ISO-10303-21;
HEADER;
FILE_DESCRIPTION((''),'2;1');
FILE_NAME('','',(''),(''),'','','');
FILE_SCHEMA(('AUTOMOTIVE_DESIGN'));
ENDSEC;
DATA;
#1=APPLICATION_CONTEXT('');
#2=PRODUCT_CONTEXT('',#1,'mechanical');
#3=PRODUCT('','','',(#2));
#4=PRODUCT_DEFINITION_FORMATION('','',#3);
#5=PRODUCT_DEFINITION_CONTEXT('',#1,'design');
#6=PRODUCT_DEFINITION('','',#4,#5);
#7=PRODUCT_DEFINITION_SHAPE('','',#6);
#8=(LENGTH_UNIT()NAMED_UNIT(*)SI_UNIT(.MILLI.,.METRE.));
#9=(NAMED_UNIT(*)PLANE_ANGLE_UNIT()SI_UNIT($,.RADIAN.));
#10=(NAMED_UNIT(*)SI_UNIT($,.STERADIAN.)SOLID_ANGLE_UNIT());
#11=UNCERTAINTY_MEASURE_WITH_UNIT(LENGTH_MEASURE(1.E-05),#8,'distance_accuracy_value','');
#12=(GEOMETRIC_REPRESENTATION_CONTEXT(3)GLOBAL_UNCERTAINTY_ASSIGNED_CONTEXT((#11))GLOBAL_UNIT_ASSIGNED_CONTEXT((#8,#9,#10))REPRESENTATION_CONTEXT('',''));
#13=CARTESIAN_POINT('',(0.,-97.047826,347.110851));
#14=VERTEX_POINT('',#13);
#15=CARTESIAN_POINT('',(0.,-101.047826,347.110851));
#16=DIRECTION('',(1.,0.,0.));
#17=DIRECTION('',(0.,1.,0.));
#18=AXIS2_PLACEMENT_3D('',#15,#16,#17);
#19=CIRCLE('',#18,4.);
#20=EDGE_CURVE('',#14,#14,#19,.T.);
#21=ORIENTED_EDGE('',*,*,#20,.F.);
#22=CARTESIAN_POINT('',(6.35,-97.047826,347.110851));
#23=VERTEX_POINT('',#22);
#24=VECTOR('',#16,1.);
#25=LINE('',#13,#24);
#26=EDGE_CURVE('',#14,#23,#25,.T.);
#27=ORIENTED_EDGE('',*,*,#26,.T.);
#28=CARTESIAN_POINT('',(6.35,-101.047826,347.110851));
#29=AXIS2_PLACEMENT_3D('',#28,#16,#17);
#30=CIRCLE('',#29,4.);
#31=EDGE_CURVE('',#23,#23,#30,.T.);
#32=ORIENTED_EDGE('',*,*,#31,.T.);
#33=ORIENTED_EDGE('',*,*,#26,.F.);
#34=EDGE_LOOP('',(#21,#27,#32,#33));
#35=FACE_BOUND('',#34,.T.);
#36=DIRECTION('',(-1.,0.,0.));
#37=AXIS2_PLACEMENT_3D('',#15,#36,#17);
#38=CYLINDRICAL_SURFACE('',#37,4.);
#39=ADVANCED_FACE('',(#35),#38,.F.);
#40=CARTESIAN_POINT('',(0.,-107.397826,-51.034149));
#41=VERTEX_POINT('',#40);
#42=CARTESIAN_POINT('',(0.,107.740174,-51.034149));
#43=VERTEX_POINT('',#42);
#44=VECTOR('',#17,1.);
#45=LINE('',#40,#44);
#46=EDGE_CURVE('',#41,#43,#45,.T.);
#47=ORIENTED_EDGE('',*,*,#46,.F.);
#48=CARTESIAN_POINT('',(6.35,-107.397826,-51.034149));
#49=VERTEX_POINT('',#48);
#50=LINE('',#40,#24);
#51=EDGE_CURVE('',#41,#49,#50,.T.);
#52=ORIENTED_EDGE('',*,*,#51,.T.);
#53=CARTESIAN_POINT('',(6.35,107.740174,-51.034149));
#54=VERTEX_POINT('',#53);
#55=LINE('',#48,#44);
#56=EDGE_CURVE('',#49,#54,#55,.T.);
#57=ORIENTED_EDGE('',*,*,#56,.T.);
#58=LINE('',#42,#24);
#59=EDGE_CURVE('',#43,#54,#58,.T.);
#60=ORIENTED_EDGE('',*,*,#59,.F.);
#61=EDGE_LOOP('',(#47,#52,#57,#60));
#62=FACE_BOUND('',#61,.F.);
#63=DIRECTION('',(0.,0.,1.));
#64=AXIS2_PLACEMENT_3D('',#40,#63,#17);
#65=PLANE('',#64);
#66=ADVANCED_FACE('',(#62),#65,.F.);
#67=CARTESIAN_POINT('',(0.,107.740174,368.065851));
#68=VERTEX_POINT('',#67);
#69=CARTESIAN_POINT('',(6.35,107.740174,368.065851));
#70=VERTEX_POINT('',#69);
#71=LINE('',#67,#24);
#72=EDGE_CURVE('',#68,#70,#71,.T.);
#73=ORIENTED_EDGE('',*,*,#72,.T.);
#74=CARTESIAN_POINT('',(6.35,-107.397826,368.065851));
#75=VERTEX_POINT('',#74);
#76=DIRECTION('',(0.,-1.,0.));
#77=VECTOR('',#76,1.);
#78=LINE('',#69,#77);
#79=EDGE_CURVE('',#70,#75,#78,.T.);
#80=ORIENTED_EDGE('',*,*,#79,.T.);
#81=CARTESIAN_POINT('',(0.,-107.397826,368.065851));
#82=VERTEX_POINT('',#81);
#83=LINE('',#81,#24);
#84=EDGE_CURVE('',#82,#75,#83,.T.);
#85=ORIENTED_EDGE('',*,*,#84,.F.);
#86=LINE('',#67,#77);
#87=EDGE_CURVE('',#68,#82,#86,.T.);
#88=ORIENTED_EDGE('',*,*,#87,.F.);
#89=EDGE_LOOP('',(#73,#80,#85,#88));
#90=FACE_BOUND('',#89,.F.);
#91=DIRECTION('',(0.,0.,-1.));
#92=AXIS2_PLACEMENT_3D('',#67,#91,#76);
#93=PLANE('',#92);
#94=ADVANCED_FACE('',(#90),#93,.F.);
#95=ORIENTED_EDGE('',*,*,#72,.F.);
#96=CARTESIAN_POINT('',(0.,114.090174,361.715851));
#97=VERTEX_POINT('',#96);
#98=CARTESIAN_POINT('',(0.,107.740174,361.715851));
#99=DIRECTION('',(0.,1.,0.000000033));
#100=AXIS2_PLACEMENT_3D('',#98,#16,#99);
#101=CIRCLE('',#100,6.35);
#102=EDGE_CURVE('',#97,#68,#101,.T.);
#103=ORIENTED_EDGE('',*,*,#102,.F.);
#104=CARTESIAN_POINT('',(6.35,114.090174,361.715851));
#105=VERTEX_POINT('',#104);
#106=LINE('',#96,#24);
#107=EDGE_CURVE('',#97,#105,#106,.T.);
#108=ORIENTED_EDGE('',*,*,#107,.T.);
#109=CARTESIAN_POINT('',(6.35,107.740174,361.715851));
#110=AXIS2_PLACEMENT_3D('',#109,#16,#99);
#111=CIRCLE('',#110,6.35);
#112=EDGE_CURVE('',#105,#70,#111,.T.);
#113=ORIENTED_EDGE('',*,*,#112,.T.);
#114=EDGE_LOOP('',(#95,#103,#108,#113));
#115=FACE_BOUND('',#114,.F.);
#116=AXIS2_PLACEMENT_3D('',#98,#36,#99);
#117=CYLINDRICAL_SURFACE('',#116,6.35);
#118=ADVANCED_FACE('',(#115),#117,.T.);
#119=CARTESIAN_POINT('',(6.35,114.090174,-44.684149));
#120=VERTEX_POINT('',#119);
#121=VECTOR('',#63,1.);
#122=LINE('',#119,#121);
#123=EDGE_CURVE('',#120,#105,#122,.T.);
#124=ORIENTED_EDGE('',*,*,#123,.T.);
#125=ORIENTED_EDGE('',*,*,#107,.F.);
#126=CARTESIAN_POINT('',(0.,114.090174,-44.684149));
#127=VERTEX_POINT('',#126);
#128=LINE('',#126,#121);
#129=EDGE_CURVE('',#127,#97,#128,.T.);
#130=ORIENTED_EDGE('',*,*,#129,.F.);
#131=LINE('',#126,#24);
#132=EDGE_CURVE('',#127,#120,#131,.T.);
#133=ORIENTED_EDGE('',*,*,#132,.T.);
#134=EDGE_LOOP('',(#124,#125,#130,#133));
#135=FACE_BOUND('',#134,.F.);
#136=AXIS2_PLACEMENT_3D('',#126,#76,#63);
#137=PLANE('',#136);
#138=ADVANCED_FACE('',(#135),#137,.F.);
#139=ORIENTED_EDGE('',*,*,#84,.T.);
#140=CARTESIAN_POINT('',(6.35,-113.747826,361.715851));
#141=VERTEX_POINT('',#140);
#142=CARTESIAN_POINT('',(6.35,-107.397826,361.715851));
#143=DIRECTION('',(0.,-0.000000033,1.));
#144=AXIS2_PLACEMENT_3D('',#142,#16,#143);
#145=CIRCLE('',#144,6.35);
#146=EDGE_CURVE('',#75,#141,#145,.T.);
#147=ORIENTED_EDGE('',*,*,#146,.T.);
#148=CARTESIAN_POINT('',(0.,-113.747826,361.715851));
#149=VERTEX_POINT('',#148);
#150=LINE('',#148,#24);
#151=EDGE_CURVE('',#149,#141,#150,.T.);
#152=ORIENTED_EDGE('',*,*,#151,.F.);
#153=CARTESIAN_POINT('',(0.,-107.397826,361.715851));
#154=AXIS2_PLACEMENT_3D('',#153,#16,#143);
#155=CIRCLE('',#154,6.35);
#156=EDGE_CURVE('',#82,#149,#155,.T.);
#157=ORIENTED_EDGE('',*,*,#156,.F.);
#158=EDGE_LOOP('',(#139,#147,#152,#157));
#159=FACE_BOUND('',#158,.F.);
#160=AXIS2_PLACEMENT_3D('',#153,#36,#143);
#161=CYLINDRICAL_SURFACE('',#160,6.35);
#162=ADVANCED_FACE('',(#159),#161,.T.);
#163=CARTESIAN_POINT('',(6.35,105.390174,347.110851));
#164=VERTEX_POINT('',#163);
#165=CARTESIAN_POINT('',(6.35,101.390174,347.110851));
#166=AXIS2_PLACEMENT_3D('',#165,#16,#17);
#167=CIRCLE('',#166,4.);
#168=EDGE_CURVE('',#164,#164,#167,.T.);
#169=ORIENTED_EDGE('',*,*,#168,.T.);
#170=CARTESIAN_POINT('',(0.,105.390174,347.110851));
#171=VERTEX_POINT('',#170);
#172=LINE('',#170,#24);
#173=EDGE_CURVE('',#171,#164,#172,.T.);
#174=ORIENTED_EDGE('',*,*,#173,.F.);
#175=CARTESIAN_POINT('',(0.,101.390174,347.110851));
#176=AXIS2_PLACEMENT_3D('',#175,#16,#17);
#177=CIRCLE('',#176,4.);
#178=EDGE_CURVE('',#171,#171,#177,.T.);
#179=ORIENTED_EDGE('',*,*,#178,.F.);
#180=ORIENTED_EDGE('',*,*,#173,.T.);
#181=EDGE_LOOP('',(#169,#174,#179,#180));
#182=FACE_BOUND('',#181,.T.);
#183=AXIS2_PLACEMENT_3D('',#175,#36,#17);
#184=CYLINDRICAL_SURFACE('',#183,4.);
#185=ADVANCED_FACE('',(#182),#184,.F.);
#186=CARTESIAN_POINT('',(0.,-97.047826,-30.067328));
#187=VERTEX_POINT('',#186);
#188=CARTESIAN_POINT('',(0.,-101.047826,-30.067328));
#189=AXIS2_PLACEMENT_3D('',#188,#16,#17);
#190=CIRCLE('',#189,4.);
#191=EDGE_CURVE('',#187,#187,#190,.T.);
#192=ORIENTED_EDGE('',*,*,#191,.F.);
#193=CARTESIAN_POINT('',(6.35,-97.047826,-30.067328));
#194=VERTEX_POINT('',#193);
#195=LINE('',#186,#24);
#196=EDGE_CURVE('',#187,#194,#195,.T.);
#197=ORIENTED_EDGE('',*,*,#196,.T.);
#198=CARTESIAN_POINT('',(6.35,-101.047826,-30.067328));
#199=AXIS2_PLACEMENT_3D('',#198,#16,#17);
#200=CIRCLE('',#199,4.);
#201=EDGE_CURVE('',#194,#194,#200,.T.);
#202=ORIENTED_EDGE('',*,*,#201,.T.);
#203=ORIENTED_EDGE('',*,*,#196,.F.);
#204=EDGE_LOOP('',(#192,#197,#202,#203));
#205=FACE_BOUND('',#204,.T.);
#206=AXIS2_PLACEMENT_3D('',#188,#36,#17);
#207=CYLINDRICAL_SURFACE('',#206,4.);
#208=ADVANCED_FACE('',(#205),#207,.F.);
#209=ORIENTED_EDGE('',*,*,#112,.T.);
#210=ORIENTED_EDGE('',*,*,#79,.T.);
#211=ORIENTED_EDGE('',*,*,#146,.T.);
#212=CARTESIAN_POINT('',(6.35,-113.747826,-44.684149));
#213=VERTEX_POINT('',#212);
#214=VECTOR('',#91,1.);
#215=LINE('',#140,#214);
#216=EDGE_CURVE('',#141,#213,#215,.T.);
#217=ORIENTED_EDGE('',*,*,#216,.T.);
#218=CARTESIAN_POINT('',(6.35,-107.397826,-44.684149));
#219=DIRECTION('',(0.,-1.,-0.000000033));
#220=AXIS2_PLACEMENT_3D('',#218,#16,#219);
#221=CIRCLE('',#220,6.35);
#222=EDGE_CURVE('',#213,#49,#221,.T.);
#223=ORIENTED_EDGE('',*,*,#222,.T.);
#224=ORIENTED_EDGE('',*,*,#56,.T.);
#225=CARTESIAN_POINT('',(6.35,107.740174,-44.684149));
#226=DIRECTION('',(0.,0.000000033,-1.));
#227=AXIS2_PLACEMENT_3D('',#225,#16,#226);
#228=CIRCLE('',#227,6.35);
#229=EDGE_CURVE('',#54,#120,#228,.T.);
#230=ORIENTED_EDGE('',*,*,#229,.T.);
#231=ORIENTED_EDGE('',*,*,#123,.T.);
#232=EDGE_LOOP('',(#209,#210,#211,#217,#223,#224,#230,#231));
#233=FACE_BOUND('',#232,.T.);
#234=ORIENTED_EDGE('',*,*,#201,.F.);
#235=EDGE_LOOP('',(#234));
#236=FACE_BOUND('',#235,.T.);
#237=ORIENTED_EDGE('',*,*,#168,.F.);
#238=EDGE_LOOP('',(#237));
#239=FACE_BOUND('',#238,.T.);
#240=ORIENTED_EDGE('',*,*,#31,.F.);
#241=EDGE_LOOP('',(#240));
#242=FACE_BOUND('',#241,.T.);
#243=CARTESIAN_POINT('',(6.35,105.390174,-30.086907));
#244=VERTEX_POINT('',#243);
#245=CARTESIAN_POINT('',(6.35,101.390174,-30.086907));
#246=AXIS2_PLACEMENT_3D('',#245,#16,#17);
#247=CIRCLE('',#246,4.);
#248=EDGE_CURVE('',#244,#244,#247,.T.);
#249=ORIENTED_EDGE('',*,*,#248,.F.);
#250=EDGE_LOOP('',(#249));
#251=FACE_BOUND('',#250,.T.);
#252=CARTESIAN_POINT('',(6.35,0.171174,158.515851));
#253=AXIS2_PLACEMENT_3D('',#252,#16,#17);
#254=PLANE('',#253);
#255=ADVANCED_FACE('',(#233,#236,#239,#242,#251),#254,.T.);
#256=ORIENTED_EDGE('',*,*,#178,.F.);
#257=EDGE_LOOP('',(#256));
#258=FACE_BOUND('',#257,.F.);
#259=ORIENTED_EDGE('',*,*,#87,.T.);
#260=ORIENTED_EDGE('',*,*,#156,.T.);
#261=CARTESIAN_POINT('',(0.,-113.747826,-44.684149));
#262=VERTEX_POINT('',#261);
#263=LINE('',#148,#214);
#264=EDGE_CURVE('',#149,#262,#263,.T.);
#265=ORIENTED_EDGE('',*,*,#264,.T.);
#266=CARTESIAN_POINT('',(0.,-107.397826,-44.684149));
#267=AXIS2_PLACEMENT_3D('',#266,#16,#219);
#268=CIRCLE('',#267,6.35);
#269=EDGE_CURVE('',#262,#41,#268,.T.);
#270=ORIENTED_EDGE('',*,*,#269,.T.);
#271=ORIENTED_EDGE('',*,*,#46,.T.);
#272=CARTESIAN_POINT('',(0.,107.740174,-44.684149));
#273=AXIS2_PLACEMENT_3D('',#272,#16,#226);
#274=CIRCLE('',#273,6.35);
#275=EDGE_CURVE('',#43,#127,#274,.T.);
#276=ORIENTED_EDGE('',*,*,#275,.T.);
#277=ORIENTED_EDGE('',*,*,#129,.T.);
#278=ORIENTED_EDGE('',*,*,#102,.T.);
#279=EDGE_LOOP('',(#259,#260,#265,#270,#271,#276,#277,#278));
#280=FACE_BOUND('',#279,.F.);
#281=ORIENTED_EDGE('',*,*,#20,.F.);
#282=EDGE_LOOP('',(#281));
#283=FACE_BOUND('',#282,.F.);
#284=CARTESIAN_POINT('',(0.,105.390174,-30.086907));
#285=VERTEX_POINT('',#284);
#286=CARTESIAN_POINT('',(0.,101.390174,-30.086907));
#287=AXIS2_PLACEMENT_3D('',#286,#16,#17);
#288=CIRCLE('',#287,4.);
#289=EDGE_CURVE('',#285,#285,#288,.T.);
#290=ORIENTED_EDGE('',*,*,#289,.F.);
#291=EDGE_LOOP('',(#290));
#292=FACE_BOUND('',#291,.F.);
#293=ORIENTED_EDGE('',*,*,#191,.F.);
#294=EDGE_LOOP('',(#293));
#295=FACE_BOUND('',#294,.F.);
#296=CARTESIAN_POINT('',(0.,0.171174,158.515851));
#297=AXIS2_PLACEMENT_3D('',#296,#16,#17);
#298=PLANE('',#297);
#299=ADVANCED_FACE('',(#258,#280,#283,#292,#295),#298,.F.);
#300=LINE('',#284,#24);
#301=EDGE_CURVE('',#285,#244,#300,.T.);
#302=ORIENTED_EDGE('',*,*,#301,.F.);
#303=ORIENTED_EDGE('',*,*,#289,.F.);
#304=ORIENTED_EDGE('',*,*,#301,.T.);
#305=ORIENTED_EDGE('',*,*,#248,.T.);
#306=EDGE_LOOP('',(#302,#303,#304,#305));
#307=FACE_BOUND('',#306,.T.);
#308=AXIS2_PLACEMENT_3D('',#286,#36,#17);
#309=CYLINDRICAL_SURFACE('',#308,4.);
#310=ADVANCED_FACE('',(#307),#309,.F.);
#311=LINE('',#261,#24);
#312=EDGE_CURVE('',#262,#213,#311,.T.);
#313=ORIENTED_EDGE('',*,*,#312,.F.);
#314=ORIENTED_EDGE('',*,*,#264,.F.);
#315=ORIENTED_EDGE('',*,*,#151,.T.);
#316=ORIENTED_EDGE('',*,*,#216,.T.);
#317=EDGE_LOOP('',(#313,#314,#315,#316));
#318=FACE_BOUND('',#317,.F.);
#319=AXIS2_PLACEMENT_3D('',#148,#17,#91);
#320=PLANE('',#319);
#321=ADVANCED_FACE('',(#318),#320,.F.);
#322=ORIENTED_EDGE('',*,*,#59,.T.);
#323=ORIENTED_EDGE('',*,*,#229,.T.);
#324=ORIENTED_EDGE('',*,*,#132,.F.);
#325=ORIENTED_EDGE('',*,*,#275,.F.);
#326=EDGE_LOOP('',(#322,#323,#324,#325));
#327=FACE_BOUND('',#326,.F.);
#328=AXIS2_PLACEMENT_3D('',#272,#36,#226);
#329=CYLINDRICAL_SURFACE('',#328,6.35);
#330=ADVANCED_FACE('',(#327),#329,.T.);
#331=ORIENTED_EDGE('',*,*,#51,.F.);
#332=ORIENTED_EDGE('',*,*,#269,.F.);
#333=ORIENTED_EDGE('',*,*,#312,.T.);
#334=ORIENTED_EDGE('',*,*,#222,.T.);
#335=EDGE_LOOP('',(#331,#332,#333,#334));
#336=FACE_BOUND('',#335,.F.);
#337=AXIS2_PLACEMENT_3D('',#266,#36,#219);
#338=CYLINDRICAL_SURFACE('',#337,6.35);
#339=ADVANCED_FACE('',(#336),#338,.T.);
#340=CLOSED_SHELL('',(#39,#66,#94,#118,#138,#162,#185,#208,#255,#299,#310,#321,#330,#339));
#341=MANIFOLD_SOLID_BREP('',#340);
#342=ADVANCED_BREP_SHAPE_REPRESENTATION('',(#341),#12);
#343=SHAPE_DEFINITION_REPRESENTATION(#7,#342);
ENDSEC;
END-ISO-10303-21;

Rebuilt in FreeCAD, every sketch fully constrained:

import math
import FreeCAD as App
import Part
import Sketcher

V = App.Vector
Q = App.Units.Quantity

doc = App.newDocument("Part")
params = doc.addObject("Spreadsheet::Sheet", "Params")
for row, (alias, value) in enumerate([
    ("sketch1_height", "16 in"),
    ("sketch1_radius", "0.25 in"),
    ("sketch1_width", "8.47 in"),
    ("pad1_length", "0.25 in"),
], start=1):
    params.set(f"A{row}", alias)
    params.set(f"B{row}", "=" + value)
    params.setAlias(f"B{row}", alias)

body = doc.addObject("PartDesign::Body", "Body")

sketch1 = body.newObject("Sketcher::SketchObject", "Sketch")
sketch1.AttachmentSupport = (doc.getObject("YZ_Plane"), [""])
sketch1.MapMode = "FlatFace"
sketch1.addGeometry(Part.LineSegment(V(107.7, 368.1, 0), V(-107.4, 368.1, 0)), False)
sketch1.addGeometry(Part.ArcOfCircle(Part.Circle(V(-107.4, 361.7, 0), V(0, 0, 1), 6.4), math.radians(90), math.radians(180)), False)
sketch1.addGeometry(Part.LineSegment(V(-113.7, 361.7, 0), V(-113.7, -44.7, 0)), False)
sketch1.addGeometry(Part.ArcOfCircle(Part.Circle(V(-107.4, -44.7, 0), V(0, 0, 1), 6.4), math.radians(-180), math.radians(-90)), False)
sketch1.addGeometry(Part.LineSegment(V(-107.4, -51, 0), V(107.7, -51, 0)), False)
sketch1.addGeometry(Part.ArcOfCircle(Part.Circle(V(107.7, -44.7, 0), V(0, 0, 1), 6.4), math.radians(-90), math.radians(0)), False)
sketch1.addGeometry(Part.LineSegment(V(114.1, -44.7, 0), V(114.1, 361.7, 0)), False)
sketch1.addGeometry(Part.ArcOfCircle(Part.Circle(V(107.7, 361.7, 0), V(0, 0, 1), 6.4), math.radians(0), math.radians(90)), False)
sketch1.addGeometry(Part.Circle(V(-101, -30.1, 0), V(0, 0, 1), 4), False)
sketch1.addGeometry(Part.Circle(V(101.4, -30.1, 0), V(0, 0, 1), 4), False)
sketch1.addGeometry(Part.Circle(V(-101, 347.1, 0), V(0, 0, 1), 4), False)
sketch1.addGeometry(Part.Circle(V(101.4, 347.1, 0), V(0, 0, 1), 4), False)
sketch1.addConstraint(Sketcher.Constraint("Tangent", 0, 2, 1, 1))
sketch1.addConstraint(Sketcher.Constraint("Tangent", 1, 2, 2, 1))
sketch1.addConstraint(Sketcher.Constraint("Tangent", 2, 2, 3, 1))
sketch1.addConstraint(Sketcher.Constraint("Tangent", 3, 2, 4, 1))
sketch1.addConstraint(Sketcher.Constraint("Tangent", 4, 2, 5, 1))
sketch1.addConstraint(Sketcher.Constraint("Tangent", 5, 2, 6, 1))
sketch1.addConstraint(Sketcher.Constraint("Tangent", 6, 2, 7, 1))
sketch1.addConstraint(Sketcher.Constraint("Tangent", 7, 2, 0, 1))
sketch1.addConstraint(Sketcher.Constraint("Horizontal", 0))
sketch1.addConstraint(Sketcher.Constraint("Vertical", 2))
sketch1.addConstraint(Sketcher.Constraint("Horizontal", 4))
sketch1.addConstraint(Sketcher.Constraint("Vertical", 6))
sketch1.addConstraint(Sketcher.Constraint("Equal", 1, 3))
sketch1.addConstraint(Sketcher.Constraint("Equal", 3, 5))
sketch1.addConstraint(Sketcher.Constraint("Equal", 5, 7))
sketch1.addConstraint(Sketcher.Constraint("Equal", 8, 9))
sketch1.addConstraint(Sketcher.Constraint("Equal", 9, 10))
sketch1.addConstraint(Sketcher.Constraint("Equal", 10, 11))
sketch1.addConstraint(Sketcher.Constraint("Horizontal", 10, 3, 11, 3))
sketch1.addConstraint(Sketcher.Constraint("Vertical", 8, 3, 10, 3))
sketch1.addConstraint(Sketcher.Constraint("Vertical", 9, 3, 11, 3))
sketch1.addConstraint(Sketcher.Constraint("DistanceY", 2, 2, 2, 1, Q("16 in")))
sketch1.addConstraint(Sketcher.Constraint("Radius", 1, Q("0.25 in")))
sketch1.addConstraint(Sketcher.Constraint("DistanceX", 0, 2, 0, 1, Q("8.47 in")))
sketch1.addConstraint(Sketcher.Constraint("DistanceX", 1, 2, 10, 3, Q("0.5 in")))
sketch1.addConstraint(Sketcher.Constraint("DistanceX", 9, 3, 5, 2, Q("0.5 in")))
sketch1.addConstraint(Sketcher.Constraint("Diameter", 8, Q("8 mm")))
sketch1.addConstraint(Sketcher.Constraint("DistanceY", 10, 3, 1, 3, Q("0.575 in")))
sketch1.addConstraint(Sketcher.Constraint("DistanceY", -1, 1, 1, 3, Q("361.715851 mm")))
sketch1.addConstraint(Sketcher.Constraint("DistanceY", 8, 3, -1, 1, Q("30.067328 mm")))
sketch1.addConstraint(Sketcher.Constraint("DistanceY", 5, 3, 9, 3, Q("14.597242 mm")))
sketch1.addConstraint(Sketcher.Constraint("DistanceX", 1, 3, -1, 1, Q("107.397826 mm")))
sketch1.setExpression("Constraints[21]", "Params.sketch1_height")
sketch1.setExpression("Constraints[22]", "Params.sketch1_radius")
sketch1.setExpression("Constraints[23]", "Params.sketch1_width")
pad1 = body.newObject("PartDesign::Pad", "Pad")
pad1.Profile = sketch1
pad1.setExpression("Length", "Params.pad1_length")

doc.recompute()
